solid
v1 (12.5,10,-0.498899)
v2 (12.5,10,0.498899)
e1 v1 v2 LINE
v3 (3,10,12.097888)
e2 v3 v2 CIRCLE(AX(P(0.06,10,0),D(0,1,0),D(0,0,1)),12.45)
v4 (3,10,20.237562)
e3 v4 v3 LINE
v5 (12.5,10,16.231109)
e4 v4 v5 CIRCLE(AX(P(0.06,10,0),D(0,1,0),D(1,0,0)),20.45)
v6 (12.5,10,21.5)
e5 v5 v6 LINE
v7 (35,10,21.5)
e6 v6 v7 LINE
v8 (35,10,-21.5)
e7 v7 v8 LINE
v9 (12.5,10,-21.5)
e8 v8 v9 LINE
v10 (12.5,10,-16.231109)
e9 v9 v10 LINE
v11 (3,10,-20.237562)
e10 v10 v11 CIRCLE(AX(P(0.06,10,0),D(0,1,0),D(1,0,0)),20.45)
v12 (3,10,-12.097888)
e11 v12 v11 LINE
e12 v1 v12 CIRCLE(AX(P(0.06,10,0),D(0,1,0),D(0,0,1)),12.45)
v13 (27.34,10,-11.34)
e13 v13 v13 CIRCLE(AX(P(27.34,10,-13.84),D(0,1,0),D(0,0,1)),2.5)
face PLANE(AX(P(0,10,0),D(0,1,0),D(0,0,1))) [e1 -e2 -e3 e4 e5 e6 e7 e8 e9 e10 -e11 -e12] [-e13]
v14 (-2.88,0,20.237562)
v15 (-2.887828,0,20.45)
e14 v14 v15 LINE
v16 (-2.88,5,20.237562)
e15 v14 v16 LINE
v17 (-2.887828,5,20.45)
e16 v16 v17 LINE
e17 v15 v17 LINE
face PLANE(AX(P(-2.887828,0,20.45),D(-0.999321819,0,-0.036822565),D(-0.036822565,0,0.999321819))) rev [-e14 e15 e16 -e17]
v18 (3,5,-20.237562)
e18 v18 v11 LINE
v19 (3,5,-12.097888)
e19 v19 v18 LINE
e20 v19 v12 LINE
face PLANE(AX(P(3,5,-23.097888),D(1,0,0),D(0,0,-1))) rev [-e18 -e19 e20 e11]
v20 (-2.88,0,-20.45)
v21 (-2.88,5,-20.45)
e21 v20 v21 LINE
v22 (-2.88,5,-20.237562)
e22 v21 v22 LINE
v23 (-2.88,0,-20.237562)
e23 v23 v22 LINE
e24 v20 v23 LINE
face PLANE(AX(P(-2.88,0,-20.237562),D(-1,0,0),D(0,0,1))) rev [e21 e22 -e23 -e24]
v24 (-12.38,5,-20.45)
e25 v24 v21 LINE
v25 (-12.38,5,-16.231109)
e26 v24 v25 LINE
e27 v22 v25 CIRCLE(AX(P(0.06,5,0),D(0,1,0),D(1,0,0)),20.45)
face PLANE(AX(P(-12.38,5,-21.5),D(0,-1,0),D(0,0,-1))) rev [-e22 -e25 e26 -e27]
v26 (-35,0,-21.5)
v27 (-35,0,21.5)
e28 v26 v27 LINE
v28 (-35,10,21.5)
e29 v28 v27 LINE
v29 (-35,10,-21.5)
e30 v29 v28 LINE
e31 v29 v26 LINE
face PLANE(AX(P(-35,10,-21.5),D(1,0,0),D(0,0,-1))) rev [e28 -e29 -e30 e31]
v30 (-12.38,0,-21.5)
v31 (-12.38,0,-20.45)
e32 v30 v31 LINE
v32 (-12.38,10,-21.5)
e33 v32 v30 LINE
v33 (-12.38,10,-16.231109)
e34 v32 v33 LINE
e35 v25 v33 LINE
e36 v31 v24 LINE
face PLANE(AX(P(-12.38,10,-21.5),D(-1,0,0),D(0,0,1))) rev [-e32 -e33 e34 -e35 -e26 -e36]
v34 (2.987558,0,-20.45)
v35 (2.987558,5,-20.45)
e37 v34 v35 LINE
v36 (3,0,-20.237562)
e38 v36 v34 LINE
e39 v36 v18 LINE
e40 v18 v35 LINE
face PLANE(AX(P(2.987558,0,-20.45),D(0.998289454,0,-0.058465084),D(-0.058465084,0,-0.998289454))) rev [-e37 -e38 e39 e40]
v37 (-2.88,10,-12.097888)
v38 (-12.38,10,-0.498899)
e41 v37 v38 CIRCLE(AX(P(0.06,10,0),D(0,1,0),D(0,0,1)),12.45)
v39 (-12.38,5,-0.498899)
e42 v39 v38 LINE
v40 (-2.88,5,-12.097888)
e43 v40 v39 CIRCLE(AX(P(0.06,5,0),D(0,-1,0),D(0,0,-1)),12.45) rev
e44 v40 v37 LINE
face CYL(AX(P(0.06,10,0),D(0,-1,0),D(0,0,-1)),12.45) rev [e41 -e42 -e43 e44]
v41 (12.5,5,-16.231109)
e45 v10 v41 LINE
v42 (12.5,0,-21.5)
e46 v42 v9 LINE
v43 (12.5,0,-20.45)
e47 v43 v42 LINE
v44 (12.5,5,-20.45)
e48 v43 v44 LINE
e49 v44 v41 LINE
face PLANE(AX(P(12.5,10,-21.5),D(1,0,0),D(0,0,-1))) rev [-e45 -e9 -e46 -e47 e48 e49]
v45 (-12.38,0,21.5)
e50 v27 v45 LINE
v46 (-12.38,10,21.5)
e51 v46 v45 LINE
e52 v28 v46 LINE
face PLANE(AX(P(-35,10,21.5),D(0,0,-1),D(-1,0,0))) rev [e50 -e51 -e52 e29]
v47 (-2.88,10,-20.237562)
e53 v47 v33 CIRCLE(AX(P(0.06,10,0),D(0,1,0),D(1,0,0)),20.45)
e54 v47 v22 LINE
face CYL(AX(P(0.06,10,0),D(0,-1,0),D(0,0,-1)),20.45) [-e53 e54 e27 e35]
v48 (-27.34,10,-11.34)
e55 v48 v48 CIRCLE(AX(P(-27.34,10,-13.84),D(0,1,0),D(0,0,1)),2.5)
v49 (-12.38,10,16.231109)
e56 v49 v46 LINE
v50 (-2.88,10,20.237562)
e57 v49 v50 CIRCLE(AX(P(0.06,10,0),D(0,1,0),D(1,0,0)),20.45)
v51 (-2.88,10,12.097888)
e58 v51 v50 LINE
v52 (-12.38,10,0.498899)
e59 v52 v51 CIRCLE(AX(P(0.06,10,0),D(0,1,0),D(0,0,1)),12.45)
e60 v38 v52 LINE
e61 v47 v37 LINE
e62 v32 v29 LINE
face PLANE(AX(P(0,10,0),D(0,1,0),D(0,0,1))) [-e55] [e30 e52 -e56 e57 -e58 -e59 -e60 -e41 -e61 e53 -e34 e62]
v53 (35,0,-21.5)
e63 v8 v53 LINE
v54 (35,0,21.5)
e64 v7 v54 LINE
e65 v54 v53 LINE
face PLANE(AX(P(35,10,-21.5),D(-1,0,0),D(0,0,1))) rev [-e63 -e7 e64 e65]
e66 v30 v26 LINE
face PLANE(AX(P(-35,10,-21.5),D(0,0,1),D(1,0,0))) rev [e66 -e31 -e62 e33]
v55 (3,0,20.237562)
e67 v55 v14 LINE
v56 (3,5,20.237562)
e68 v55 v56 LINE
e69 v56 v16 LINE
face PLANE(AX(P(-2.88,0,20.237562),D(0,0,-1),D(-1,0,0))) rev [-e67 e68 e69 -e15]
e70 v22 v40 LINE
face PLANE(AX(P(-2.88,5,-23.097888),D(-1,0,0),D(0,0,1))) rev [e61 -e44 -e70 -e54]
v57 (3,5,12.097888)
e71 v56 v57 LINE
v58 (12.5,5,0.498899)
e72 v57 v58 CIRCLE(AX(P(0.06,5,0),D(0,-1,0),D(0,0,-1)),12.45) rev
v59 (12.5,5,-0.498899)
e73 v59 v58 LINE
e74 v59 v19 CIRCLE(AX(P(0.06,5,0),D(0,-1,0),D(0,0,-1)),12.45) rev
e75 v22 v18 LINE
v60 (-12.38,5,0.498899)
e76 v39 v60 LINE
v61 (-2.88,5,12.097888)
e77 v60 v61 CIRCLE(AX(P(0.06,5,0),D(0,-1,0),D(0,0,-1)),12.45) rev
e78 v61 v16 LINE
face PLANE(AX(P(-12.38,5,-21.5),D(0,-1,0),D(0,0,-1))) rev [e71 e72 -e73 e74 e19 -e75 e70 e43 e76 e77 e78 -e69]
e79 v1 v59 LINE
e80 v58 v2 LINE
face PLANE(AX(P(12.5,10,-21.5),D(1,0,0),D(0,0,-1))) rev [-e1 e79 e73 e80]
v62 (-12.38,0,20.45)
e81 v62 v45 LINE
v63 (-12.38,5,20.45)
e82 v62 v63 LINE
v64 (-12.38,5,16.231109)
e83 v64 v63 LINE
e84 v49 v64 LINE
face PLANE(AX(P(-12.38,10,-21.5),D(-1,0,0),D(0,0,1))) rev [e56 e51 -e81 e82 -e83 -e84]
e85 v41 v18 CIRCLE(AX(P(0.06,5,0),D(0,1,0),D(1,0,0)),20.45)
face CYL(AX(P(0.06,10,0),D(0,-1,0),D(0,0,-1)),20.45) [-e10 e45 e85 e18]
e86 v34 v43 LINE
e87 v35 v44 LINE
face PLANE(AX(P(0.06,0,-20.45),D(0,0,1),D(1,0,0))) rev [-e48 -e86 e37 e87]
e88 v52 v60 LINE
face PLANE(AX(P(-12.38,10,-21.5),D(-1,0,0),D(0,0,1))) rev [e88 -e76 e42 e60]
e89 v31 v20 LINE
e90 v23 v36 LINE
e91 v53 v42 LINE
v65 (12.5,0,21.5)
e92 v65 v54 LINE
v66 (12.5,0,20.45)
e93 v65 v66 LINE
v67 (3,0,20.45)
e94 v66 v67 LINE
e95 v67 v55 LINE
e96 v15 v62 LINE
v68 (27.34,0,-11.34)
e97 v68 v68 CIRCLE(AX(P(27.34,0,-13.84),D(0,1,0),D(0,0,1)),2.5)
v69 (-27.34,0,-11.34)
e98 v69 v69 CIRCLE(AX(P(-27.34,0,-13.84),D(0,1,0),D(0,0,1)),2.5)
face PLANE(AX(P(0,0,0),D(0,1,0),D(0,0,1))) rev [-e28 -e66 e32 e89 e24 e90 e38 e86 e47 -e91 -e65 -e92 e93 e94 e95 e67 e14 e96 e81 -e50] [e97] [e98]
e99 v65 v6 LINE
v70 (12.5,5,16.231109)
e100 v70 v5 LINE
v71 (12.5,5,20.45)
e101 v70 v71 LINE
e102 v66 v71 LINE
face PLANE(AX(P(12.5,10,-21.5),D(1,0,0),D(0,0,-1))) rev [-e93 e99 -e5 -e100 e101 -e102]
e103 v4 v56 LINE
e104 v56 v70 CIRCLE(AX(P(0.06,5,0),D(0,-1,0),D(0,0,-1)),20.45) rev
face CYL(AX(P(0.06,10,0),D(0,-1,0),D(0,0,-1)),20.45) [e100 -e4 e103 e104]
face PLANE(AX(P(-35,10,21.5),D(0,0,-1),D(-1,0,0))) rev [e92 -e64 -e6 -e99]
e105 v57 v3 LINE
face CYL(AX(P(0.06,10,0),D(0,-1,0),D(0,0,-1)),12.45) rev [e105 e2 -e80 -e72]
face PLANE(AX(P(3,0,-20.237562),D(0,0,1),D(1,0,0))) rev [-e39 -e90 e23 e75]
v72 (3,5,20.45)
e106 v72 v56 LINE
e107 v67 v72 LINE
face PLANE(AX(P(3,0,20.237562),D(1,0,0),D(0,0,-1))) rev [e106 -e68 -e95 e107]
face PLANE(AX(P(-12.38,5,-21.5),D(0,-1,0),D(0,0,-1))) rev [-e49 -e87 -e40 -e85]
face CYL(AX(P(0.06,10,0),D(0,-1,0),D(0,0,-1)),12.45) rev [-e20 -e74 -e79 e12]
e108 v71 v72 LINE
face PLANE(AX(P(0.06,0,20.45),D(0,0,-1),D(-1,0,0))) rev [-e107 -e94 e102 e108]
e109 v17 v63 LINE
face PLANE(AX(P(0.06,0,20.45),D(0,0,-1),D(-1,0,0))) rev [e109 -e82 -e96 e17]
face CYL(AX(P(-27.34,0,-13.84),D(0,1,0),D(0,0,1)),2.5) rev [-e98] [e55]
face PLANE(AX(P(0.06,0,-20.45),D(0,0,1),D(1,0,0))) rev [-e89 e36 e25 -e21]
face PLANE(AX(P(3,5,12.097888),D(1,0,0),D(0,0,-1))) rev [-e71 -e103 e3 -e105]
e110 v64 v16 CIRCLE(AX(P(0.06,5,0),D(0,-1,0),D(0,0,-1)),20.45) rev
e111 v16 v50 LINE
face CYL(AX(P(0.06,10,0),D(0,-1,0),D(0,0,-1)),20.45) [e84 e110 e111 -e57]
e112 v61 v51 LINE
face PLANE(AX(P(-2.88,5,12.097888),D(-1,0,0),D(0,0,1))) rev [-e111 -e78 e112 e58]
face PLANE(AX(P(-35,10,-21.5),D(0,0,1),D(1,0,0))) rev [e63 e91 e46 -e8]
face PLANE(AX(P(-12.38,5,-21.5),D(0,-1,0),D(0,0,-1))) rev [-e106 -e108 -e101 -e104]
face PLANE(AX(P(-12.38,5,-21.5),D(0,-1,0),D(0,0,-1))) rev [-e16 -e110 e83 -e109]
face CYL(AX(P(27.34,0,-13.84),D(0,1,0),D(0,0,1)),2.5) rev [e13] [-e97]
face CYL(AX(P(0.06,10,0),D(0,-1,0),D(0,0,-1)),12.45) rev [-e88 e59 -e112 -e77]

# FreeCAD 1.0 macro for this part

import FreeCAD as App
import Part
import Sketcher


def add_polygon(sketch, points):
    """Adds a closed chain of lines whose ends are joined by coincident constraints."""
    first, n = sketch.GeometryCount, len(points)
    for a, b in zip(points, points[1:] + points[:1]):
        sketch.addGeometry(Part.LineSegment(App.Vector(*a, 0), App.Vector(*b, 0)), False)
    for i in range(n):
        sketch.addConstraint(Sketcher.Constraint("Coincident", first + i, 2, first + (i + 1) % n, 1))

doc = App.newDocument("Part")
body = doc.addObject("PartDesign::Body", "Body")

sketch1 = body.newObject("Sketcher::SketchObject", "Sketch")
sketch1.AttachmentSupport = (doc.getObject("XZ_Plane"), [""])
sketch1.MapMode = "FlatFace"
add_polygon(sketch1, [(-35, -21.5), (-35, 21.5), (35, 21.5), (35, -21.5)])
sketch1.addConstraint(Sketcher.Constraint("Vertical", 0))
sketch1.addConstraint(Sketcher.Constraint("Horizontal", 1))
sketch1.addConstraint(Sketcher.Constraint("Vertical", 2))
sketch1.addConstraint(Sketcher.Constraint("Horizontal", 3))
sketch1.addConstraint(Sketcher.Constraint("Symmetric", 0, 2, 2, 2, -1, 1))
sketch1.addConstraint(Sketcher.Constraint("DistanceX", 1, 1, 1, 2, 70.0))
sketch1.addConstraint(Sketcher.Constraint("DistanceY", 0, 1, 0, 2, 43.0))
pad1 = body.newObject("PartDesign::Pad", "Pad")
pad1.Profile = sketch1
pad1.Length = 10
pad1.Reversed = True

sketch2 = body.newObject("Sketcher::SketchObject", "Sketch001")
sketch2.AttachmentSupport = (doc.getObject("XZ_Plane"), [""])
sketch2.MapMode = "FlatFace"
sketch2.AttachmentOffset = App.Placement(App.Vector(0, 0, -10), App.Rotation())
sketch2.addGeometry(Part.Circle(App.Vector(-27.34, -13.84, 0), App.Vector(0, 0, 1), 2.5), False)
sketch2.addConstraint(Sketcher.Constraint("Diameter", 0, 5.0))
sketch2.addConstraint(Sketcher.Constraint("DistanceX", 0, 3, -1, 1, 27.34))
sketch2.addConstraint(Sketcher.Constraint("DistanceY", 0, 3, -1, 1, 13.84))
pocket1 = body.newObject("PartDesign::Pocket", "Pocket")
pocket1.Profile = sketch2
pocket1.Length = 10
pocket1.Reversed = True

sketch3 = body.newObject("Sketcher::SketchObject", "Sketch002")
sketch3.AttachmentSupport = (doc.getObject("XZ_Plane"), [""])
sketch3.MapMode = "FlatFace"
sketch3.AttachmentOffset = App.Placement(App.Vector(0, 0, -10), App.Rotation())
sketch3.addGeometry(Part.Circle(App.Vector(27.34, -13.84, 0), App.Vector(0, 0, 1), 2.5), False)
sketch3.addConstraint(Sketcher.Constraint("Diameter", 0, 5.0))
sketch3.addConstraint(Sketcher.Constraint("DistanceX", -1, 1, 0, 3, 27.34))
sketch3.addConstraint(Sketcher.Constraint("DistanceY", 0, 3, -1, 1, 13.84))
pocket2 = body.newObject("PartDesign::Pocket", "Pocket001")
pocket2.Profile = sketch3
pocket2.Length = 10
pocket2.Reversed = True

sketch4 = body.newObject("Sketcher::SketchObject", "Sketch003")
sketch4.AttachmentSupport = (doc.getObject("XY_Plane"), [""])
sketch4.MapMode = "FlatFace"
sketch4.AttachmentOffset = App.Placement(App.Vector(0, 0, 21.5), App.Rotation())
add_polygon(sketch4, [(-12.38, 10), (-12.38, 5), (12.5, 5), (12.5, 10)])
sketch4.addConstraint(Sketcher.Constraint("Vertical", 0))
sketch4.addConstraint(Sketcher.Constraint("Horizontal", 1))
sketch4.addConstraint(Sketcher.Constraint("Vertical", 2))
sketch4.addConstraint(Sketcher.Constraint("Horizontal", 3))
sketch4.addConstraint(Sketcher.Constraint("DistanceY", 0, 2, 0, 1, 5.0))
sketch4.addConstraint(Sketcher.Constraint("DistanceY", -1, 1, 0, 2, 5.0))
sketch4.addConstraint(Sketcher.Constraint("DistanceX", 1, 1, 1, 2, 24.88))
sketch4.addConstraint(Sketcher.Constraint("DistanceX", -1, 1, 1, 2, 12.5))
pocket3 = body.newObject("PartDesign::Pocket", "Pocket002")
pocket3.Profile = sketch4
pocket3.Type = "ThroughAll"

sketch5 = body.newObject("Sketcher::SketchObject", "Sketch004")
sketch5.AttachmentSupport = (doc.getObject("XZ_Plane"), [""])
sketch5.MapMode = "FlatFace"
sketch5.AttachmentOffset = App.Placement(App.Vector(0, 0, -5), App.Rotation())
sketch5.addGeometry(Part.Circle(App.Vector(0.06, 0, 0), App.Vector(0, 0, 1), 20.45), False)
sketch5.addGeometry(Part.Circle(App.Vector(0.06, 0, 0), App.Vector(0, 0, 1), 12.45), False)
sketch5.addConstraint(Sketcher.Constraint("Coincident", 1, 3, 0, 3))
sketch5.addConstraint(Sketcher.Constraint("PointOnObject", 0, 3, -1))
sketch5.addConstraint(Sketcher.Constraint("Diameter", 0, 40.9))
sketch5.addConstraint(Sketcher.Constraint("Diameter", 1, 24.9))
sketch5.addConstraint(Sketcher.Constraint("DistanceX", -1, 1, 0, 3, 0.06))
pad2 = body.newObject("PartDesign::Pad", "Pad001")
pad2.Profile = sketch5
pad2.Length = 5
pad2.Reversed = True

sketch6 = body.newObject("Sketcher::SketchObject", "Sketch005")
sketch6.AttachmentSupport = (doc.getObject("XZ_Plane"), [""])
sketch6.MapMode = "FlatFace"
sketch6.AttachmentOffset = App.Placement(App.Vector(0, 0, -5), App.Rotation())
add_polygon(sketch6, [(12.5, 20.45), (-12.38, 20.45), (-12.38, 21.5), (12.5, 21.5)])
sketch6.addConstraint(Sketcher.Constraint("Horizontal", 0))
sketch6.addConstraint(Sketcher.Constraint("Vertical", 1))
sketch6.addConstraint(Sketcher.Constraint("Horizontal", 2))
sketch6.addConstraint(Sketcher.Constraint("Vertical", 3))
sketch6.addConstraint(Sketcher.Constraint("DistanceX", 0, 2, 0, 1, 24.88))
sketch6.addConstraint(Sketcher.Constraint("DistanceY", 1, 1, 1, 2, 1.05))
sketch6.addConstraint(Sketcher.Constraint("DistanceY", -1, 1, 1, 2, 21.5))
sketch6.addConstraint(Sketcher.Constraint("DistanceX", -1, 1, 2, 2, 12.5))
pocket4 = body.newObject("PartDesign::Pocket", "Pocket003")
pocket4.Profile = sketch6
pocket4.Length = 5
pocket4.Reversed = True

sketch7 = body.newObject("Sketcher::SketchObject", "Sketch006")
sketch7.AttachmentSupport = (doc.getObject("XZ_Plane"), [""])
sketch7.MapMode = "FlatFace"
sketch7.AttachmentOffset = App.Placement(App.Vector(0, 0, -5), App.Rotation())
add_polygon(sketch7, [(12.5, -20.45), (12.5, -21.5), (-12.38, -21.5), (-12.38, -20.45)])
sketch7.addConstraint(Sketcher.Constraint("Vertical", 0))
sketch7.addConstraint(Sketcher.Constraint("Horizontal", 1))
sketch7.addConstraint(Sketcher.Constraint("Vertical", 2))
sketch7.addConstraint(Sketcher.Constraint("Horizontal", 3))
sketch7.addConstraint(Sketcher.Constraint("DistanceX", 1, 2, 1, 1, 24.88))
sketch7.addConstraint(Sketcher.Constraint("DistanceY", 0, 2, 0, 1, 1.05))
sketch7.addConstraint(Sketcher.Constraint("DistanceX", -1, 1, 0, 2, 12.5))
sketch7.addConstraint(Sketcher.Constraint("DistanceY", 0, 2, -1, 1, 21.5))
pocket5 = body.newObject("PartDesign::Pocket", "Pocket004")
pocket5.Profile = sketch7
pocket5.Length = 5
pocket5.Reversed = True

sketch8 = body.newObject("Sketcher::SketchObject", "Sketch007")
sketch8.AttachmentSupport = (doc.getObject("XZ_Plane"), [""])
sketch8.MapMode = "FlatFace"
sketch8.AttachmentOffset = App.Placement(App.Vector(0, 0, -10), App.Rotation())
add_polygon(sketch8, [(-2.88, -23.097888), (-2.88, -12.097888), (3, -12.097888), (3, -23.097888)])
sketch8.addConstraint(Sketcher.Constraint("Vertical", 0))
sketch8.addConstraint(Sketcher.Constraint("Horizontal", 1))
sketch8.addConstraint(Sketcher.Constraint("Vertical", 2))
sketch8.addConstraint(Sketcher.Constraint("Horizontal", 3))
sketch8.addConstraint(Sketcher.Constraint("DistanceY", 0, 1, 0, 2, 11.0))
sketch8.addConstraint(Sketcher.Constraint("DistanceX", -1, 1, 1, 2, 3.0))
sketch8.addConstraint(Sketcher.Constraint("DistanceX", 1, 1, 1, 2, 5.88))
sketch8.addConstraint(Sketcher.Constraint("DistanceY", 0, 2, -1, 1, 12.097888))
pocket6 = body.newObject("PartDesign::Pocket", "Pocket005")
pocket6.Profile = sketch8
pocket6.Length = 5
pocket6.Reversed = True

sketch9 = body.newObject("Sketcher::SketchObject", "Sketch008")
sketch9.AttachmentSupport = (doc.getObject("XZ_Plane"), [""])
sketch9.MapMode = "FlatFace"
sketch9.AttachmentOffset = App.Placement(App.Vector(0, 0, -10), App.Rotation())
add_polygon(sketch9, [(-2.88, 12.097888), (-2.88, 20.45), (3, 20.45), (3, 12.097888)])
sketch9.addConstraint(Sketcher.Constraint("Vertical", 0))
sketch9.addConstraint(Sketcher.Constraint("Horizontal", 1))
sketch9.addConstraint(Sketcher.Constraint("Vertical", 2))
sketch9.addConstraint(Sketcher.Constraint("Horizontal", 3))
sketch9.addConstraint(Sketcher.Constraint("DistanceX", -1, 1, 1, 2, 3.0))
sketch9.addConstraint(Sketcher.Constraint("DistanceX", 1, 1, 1, 2, 5.88))
sketch9.addConstraint(Sketcher.Constraint("DistanceY", -1, 1, 0, 2, 20.45))
sketch9.addConstraint(Sketcher.Constraint("DistanceY", 0, 1, 0, 2, 8.352112))
pocket7 = body.newObject("PartDesign::Pocket", "Pocket006")
pocket7.Profile = sketch9
pocket7.Length = 5
pocket7.Reversed = True

sketch10 = body.newObject("Sketcher::SketchObject", "Sketch009")
sketch10.AttachmentSupport = (doc.getObject("XZ_Plane"), [""])
sketch10.MapMode = "FlatFace"
sketch10.AttachmentOffset = App.Placement(App.Vector(0, 0, -5), App.Rotation())
add_polygon(sketch10, [(-2.88, -20.45), (-2.88, -20.237562), (3, -20.237562), (2.987558, -20.45)])
sketch10.addConstraint(Sketcher.Constraint("Vertical", 0))
sketch10.addConstraint(Sketcher.Constraint("Horizontal", 1))
sketch10.addConstraint(Sketcher.Constraint("Horizontal", 3))
sketch10.addConstraint(Sketcher.Constraint("DistanceX", -1, 1, 1, 2, 3.0))
sketch10.addConstraint(Sketcher.Constraint("DistanceX", 1, 1, 1, 2, 5.88))
sketch10.addConstraint(Sketcher.Constraint("DistanceY", 2, 2, -1, 1, 20.45))
sketch10.addConstraint(Sketcher.Constraint("DistanceX", 3, 2, 3, 1, 5.867558))
sketch10.addConstraint(Sketcher.Constraint("DistanceY", 0, 1, 0, 2, 0.212438))
pocket8 = body.newObject("PartDesign::Pocket", "Pocket007")
pocket8.Profile = sketch10
pocket8.Length = 5
pocket8.Reversed = True

sketch11 = body.newObject("Sketcher::SketchObject", "Sketch010")
sketch11.AttachmentSupport = (doc.getObject("XZ_Plane"), [""])
sketch11.MapMode = "FlatFace"
sketch11.AttachmentOffset = App.Placement(App.Vector(0, 0, -5), App.Rotation())
add_polygon(sketch11, [(3, 20.45), (3, 20.237562), (-2.88, 20.237562), (-2.887828, 20.45)])
sketch11.addConstraint(Sketcher.Constraint("Vertical", 0))
sketch11.addConstraint(Sketcher.Constraint("Horizontal", 1))
sketch11.addConstraint(Sketcher.Constraint("Horizontal", 3))
sketch11.addConstraint(Sketcher.Constraint("DistanceX", -1, 1, 0, 2, 3.0))
sketch11.addConstraint(Sketcher.Constraint("DistanceX", 1, 2, 1, 1, 5.88))
sketch11.addConstraint(Sketcher.Constraint("DistanceY", -1, 1, 2, 2, 20.45))
sketch11.addConstraint(Sketcher.Constraint("DistanceY", 0, 2, 0, 1, 0.212438))
sketch11.addConstraint(Sketcher.Constraint("DistanceX", 3, 1, 3, 2, 5.887828))
pocket9 = body.newObject("PartDesign::Pocket", "Pocket008")
pocket9.Profile = sketch11
pocket9.Length = 5
pocket9.Reversed = True

doc.recompute()
